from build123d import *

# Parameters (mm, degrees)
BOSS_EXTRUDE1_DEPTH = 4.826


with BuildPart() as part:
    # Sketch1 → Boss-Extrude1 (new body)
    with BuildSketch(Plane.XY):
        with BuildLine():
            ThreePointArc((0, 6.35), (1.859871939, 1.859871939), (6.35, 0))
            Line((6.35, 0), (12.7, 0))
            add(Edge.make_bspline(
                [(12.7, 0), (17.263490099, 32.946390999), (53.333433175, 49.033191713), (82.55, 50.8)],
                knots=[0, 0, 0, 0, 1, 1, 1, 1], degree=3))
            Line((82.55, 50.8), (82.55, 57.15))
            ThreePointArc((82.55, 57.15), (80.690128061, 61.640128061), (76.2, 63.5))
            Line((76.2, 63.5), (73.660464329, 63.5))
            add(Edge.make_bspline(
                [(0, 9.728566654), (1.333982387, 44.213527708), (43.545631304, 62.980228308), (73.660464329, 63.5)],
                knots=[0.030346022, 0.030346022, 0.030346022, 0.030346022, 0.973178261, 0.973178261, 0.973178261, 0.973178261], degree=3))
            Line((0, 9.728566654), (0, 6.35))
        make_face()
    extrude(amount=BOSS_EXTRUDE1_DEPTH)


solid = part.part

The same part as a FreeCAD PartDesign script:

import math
import FreeCAD as App
import Part
import Sketcher

V = App.Vector
Q = App.Units.Quantity

doc = App.newDocument("Part")
body = doc.addObject("PartDesign::Body", "Body")

# Sketch on XY plane
sketch1 = body.newObject("Sketcher::SketchObject", "Sketch")
sketch1.AttachmentSupport = (doc.getObject("XY_Plane"), [""])
sketch1.MapMode = "FlatFace"
sketch1.addGeometry([
    Part.ArcOfCircle(Part.Circle(V(6.35, 6.35, 0), V(0, 0, 1), 6.35), math.radians(180), math.radians(270)),  # 0
    Part.LineSegment(V(6.35, 0, 0), V(12.7, 0, 0)),  # 1
    Part.BSplineCurve([V(12.7, 0, 0), V(17.26349, 32.946391, 0), V(53.333433, 49.033192, 0), V(82.55, 50.8, 0)], [4, 4], [0, 1], False, 3, [1, 1, 1, 1], False),  # 2
    Part.LineSegment(V(82.55, 50.8, 0), V(82.55, 57.15, 0)),  # 3
    Part.ArcOfCircle(Part.Circle(V(76.2, 57.15, 0), V(0, 0, 1), 6.35), math.radians(0), math.radians(90)),  # 4
    Part.LineSegment(V(76.2, 63.5, 0), V(73.660464, 63.5, 0)),  # 5
    Part.BSplineCurve([V(0, 9.728567, 0), V(1.333982, 44.213528, 0), V(43.545631, 62.980228, 0), V(73.660464, 63.5, 0)], [4, 4], [0.030346022, 0.973178261], False, 3, [1, 1, 1, 1], False),  # 6
    Part.LineSegment(V(0, 9.728567, 0), V(0, 6.35, 0)),  # 7
], False)
sketch1.addConstraint([
    Sketcher.Constraint("Block", 2),
    Sketcher.Constraint("Block", 6),
    Sketcher.Constraint("Tangent", 0, 2, 1, 1),
    Sketcher.Constraint("Coincident", 1, 2, 2, 1),
    Sketcher.Constraint("Coincident", 2, 2, 3, 1),
    Sketcher.Constraint("Tangent", 3, 2, 4, 1),
    Sketcher.Constraint("Tangent", 4, 2, 5, 1),
    Sketcher.Constraint("Coincident", 5, 2, 6, 2),
    Sketcher.Constraint("Coincident", 6, 1, 7, 1),
    Sketcher.Constraint("Tangent", 7, 2, 0, 1),
    Sketcher.Constraint("Horizontal", 1),
    Sketcher.Constraint("Vertical", 3),
    Sketcher.Constraint("Horizontal", 5),
    Sketcher.Constraint("Vertical", 7),
    Sketcher.Constraint("Equal", 0, 4),
    Sketcher.Constraint("Radius", 0, Q("0.25 in")),
])
pad1 = body.newObject("PartDesign::Pad", "Pad")
pad1.Profile = sketch1
pad1.Length = Q("0.19 in")

doc.recompute()
